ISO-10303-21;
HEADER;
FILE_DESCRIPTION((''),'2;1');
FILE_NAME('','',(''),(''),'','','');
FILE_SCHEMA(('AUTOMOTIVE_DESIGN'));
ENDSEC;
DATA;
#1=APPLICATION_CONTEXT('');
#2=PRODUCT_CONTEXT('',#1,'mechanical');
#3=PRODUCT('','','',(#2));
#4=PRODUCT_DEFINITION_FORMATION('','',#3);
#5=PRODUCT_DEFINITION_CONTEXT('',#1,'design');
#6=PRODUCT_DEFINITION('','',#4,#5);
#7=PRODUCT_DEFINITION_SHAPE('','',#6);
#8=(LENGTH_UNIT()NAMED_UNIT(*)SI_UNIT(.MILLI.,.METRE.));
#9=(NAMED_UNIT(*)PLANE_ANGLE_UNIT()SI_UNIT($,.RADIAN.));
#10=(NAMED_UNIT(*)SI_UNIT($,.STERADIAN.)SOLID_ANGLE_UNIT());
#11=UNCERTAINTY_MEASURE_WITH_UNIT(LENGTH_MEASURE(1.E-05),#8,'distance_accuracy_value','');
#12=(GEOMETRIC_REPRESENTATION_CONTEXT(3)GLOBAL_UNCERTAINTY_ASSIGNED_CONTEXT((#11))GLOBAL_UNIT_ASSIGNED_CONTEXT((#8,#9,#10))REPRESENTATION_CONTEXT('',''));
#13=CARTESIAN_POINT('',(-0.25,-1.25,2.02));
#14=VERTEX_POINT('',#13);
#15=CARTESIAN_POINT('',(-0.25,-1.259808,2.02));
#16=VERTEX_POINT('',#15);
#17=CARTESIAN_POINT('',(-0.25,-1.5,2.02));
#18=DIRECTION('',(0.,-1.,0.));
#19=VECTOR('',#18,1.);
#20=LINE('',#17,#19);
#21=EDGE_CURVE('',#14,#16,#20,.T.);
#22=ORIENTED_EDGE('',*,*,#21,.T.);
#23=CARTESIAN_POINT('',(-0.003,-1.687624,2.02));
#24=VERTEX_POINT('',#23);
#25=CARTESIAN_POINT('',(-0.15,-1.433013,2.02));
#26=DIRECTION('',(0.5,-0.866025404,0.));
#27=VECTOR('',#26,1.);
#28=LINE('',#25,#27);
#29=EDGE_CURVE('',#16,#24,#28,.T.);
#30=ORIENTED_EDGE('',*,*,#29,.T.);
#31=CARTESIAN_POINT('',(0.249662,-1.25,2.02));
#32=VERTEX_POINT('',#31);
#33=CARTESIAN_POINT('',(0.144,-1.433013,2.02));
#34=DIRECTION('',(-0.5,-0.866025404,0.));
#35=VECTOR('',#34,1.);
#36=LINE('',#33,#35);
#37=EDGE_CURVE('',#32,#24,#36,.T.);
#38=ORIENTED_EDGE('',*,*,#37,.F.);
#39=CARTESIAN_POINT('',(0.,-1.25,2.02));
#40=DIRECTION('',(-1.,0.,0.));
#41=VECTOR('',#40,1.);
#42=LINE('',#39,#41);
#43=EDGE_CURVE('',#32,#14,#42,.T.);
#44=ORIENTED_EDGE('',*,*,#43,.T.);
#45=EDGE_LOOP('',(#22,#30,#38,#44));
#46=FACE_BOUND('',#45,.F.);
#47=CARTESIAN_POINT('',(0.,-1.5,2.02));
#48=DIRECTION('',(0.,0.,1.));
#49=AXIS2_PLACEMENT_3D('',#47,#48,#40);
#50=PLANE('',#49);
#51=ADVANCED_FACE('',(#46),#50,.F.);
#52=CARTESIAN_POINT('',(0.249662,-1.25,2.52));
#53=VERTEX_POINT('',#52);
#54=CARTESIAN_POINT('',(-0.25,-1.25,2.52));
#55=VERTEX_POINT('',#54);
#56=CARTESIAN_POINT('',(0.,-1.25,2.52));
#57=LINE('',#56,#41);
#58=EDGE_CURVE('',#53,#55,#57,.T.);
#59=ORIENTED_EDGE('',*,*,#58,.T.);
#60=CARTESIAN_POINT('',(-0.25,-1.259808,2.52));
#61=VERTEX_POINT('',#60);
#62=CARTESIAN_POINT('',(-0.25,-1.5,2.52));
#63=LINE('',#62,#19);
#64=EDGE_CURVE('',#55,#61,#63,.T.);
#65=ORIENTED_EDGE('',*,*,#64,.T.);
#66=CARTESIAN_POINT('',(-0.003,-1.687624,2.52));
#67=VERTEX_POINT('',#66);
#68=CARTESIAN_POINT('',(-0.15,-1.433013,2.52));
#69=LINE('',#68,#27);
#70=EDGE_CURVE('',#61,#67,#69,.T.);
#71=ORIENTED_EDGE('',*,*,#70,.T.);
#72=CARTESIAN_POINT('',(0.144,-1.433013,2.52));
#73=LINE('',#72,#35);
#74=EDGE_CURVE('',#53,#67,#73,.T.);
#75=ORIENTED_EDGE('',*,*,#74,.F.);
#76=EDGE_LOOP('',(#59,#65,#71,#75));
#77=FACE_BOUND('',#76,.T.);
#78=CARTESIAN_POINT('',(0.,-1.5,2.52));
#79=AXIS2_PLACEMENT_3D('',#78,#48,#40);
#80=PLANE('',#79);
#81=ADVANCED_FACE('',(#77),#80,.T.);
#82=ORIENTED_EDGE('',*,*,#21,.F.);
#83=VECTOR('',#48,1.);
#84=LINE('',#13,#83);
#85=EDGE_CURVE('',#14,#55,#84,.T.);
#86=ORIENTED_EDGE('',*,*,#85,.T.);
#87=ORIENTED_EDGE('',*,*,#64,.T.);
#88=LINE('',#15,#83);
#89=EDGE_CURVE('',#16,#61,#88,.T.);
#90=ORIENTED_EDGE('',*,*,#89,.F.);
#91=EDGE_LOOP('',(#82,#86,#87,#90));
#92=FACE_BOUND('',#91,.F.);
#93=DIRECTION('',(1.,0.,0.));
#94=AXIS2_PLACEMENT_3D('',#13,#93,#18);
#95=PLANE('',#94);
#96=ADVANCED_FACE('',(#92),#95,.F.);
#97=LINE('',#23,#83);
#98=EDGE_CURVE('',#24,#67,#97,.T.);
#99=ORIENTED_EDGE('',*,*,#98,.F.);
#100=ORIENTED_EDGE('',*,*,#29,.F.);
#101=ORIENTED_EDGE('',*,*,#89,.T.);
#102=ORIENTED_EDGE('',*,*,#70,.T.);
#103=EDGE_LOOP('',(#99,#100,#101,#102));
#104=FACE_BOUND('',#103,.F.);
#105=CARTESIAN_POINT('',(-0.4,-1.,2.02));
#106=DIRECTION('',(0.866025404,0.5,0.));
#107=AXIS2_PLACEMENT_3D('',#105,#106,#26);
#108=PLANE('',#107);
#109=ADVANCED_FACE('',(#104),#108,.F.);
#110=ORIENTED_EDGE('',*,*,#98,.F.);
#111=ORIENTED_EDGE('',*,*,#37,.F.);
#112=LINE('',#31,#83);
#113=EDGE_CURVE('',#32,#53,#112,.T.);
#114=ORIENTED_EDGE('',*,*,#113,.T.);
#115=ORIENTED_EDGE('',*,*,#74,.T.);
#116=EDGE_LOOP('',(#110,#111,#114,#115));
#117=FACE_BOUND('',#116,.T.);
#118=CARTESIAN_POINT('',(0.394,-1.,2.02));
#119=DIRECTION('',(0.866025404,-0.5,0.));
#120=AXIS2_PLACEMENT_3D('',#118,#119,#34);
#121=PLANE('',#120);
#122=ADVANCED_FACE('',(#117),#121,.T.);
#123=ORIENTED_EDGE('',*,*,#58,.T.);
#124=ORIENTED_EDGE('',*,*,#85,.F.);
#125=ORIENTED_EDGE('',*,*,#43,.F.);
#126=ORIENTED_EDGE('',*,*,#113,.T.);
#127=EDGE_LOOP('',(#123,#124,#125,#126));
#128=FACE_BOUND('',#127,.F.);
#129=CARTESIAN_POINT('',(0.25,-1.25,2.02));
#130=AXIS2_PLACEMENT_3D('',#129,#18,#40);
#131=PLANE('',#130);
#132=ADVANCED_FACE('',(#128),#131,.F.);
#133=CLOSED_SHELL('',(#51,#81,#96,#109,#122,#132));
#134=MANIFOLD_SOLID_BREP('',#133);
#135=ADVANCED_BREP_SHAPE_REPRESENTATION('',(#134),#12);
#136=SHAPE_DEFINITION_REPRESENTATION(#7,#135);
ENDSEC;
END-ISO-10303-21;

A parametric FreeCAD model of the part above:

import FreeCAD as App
import Part
import Sketcher
Q = App.Units.Quantity


def add_polygon(sketch, points):
    """Adds a closed chain of lines whose ends are joined by coincident constraints."""
    first, n = sketch.GeometryCount, len(points)
    for a, b in zip(points, points[1:] + points[:1]):
        sketch.addGeometry(Part.LineSegment(App.Vector(*a, 0), App.Vector(*b, 0)), False)
    for i in range(n):
        sketch.addConstraint(Sketcher.Constraint("Coincident", first + i, 2, first + (i + 1) % n, 1))

doc = App.newDocument("Part")
params = doc.addObject("Spreadsheet::Sheet", "Params")
for row, (alias, value) in enumerate([
    ("sketch1_width", "1 mm"),
    ("pad1_length", "0.5 mm"),
    ("sketch2_width", "1 mm"),
    ("pad2_length", "0.5 mm"),
    ("sketch3_width", "0.5 mm"),
    ("pad3_length", "0.5 mm"),
], start=1):
    params.set(f"A{row}", alias)
    params.set(f"B{row}", "=" + value)
    params.setAlias(f"B{row}", alias)

body = doc.addObject("PartDesign::Body", "Body")

# Sketch on XY plane
sketch1 = doc.addObject("Sketcher::SketchObject", "Sketch")
body.addObject(sketch1)
sketch1.AttachmentSupport = (doc.XY_Plane, [""])
sketch1.MapMode = "FlatFace"
add_polygon(sketch1, [(0, 1), (0, 0), (1, 0), (1, 1)])  # lines 0-3
sketch1.addConstraint([
    Sketcher.Constraint("Vertical", 0),
    Sketcher.Constraint("Horizontal", 1),
    Sketcher.Constraint("Vertical", 2),
    Sketcher.Constraint("Horizontal", 3),
    Sketcher.Constraint("Coincident", 0, 2, -1, 1),
    Sketcher.Constraint("Equal", 3, 0),
    Sketcher.Constraint("DistanceX", 1, 1, 1, 2, Q("1 mm")),
])
sketch1.setExpression("Constraints[10]", "Params.sketch1_width")
pad1 = doc.addObject("PartDesign::Pad", "Pad")
body.addObject(pad1)
pad1.Profile = sketch1
pad1.setExpression("Length", "Params.pad1_length")
body2 = doc.addObject("PartDesign::Body", "Body001")
doc.recompute()

body.Placement = App.Placement(App.Vector(0.4, 1, 2.02), App.Rotation(App.Vector(0, 0, 1), 30))
boolean = doc.addObject("PartDesign::Boolean", "Boolean")
body2.addObject(boolean)
boolean.Type = "Fuse"
boolean.addObjects([body])
body3 = doc.addObject("PartDesign::Body", "Body002")

# Sketch on XY plane
sketch2 = doc.addObject("Sketcher::SketchObject", "Sketch001")
body3.addObject(sketch2)
sketch2.AttachmentSupport = (doc.getObject("XY_Plane002"), [""])
sketch2.MapMode = "FlatFace"
add_polygon(sketch2, [(0, 1), (0, 0), (1, 0), (1, 1)])  # lines 0-3
sketch2.addConstraint([
    Sketcher.Constraint("Vertical", 0),
    Sketcher.Constraint("Horizontal", 1),
    Sketcher.Constraint("Vertical", 2),
    Sketcher.Constraint("Horizontal", 3),
    Sketcher.Constraint("Coincident", 0, 2, -1, 1),
    Sketcher.Constraint("Equal", 3, 0),
    Sketcher.Constraint("DistanceX", 1, 1, 1, 2, Q("1 mm")),
])
sketch2.setExpression("Constraints[10]", "Params.sketch2_width")
pad2 = doc.addObject("PartDesign::Pad", "Pad001")
body3.addObject(pad2)
pad2.Profile = sketch2
pad2.setExpression("Length", "Params.pad2_length")
body4 = doc.addObject("PartDesign::Body", "Body003")
doc.recompute()

body3.Placement = App.Placement(App.Vector(-0.394, 1, 2.02), App.Rotation(App.Vector(0, 0, 1), 60))
boolean2 = doc.addObject("PartDesign::Boolean", "Boolean001")
body4.addObject(boolean2)
boolean2.Type = "Fuse"
boolean2.addObjects([body3])
body5 = doc.addObject("PartDesign::Body", "Body004")

# Sketch on XY plane
sketch3 = doc.addObject("Sketcher::SketchObject", "Sketch002")
body5.addObject(sketch3)
sketch3.AttachmentSupport = (doc.getObject("XY_Plane004"), [""])
sketch3.MapMode = "FlatFace"
sketch3.AttachmentOffset = App.Placement(App.Vector(0, 0, 2.02), App.Rotation())
add_polygon(sketch3, [(-0.25, 1.75), (-0.25, 1.25), (0.25, 1.25), (0.25, 1.75)])  # lines 0-3
sketch3.addConstraint([
    Sketcher.Constraint("Vertical", 0),
    Sketcher.Constraint("Horizontal", 1),
    Sketcher.Constraint("Vertical", 2),
    Sketcher.Constraint("Horizontal", 3),
    Sketcher.Constraint("Equal", 3, 0),
    Sketcher.Constraint("DistanceX", 1, 1, 1, 2, Q("0.5 mm")),
    Sketcher.Constraint("DistanceX", 0, 2, -1, 1, Q("0.25 mm")),
    Sketcher.Constraint("DistanceY", -1, 1, 0, 2, Q("1.25 mm")),
])
sketch3.setExpression("Constraints[9]", "Params.sketch3_width")
pad3 = doc.addObject("PartDesign::Pad", "Pad002")
body5.addObject(pad3)
pad3.Profile = sketch3
pad3.setExpression("Length", "Params.pad3_length")
doc.recompute()

boolean3 = doc.addObject("PartDesign::Boolean", "Boolean002")
body5.addObject(boolean3)
boolean3.Type = "Cut"
boolean3.addObjects([body4])
doc.recompute()

boolean4 = doc.addObject("PartDesign::Boolean", "Boolean003")
body5.addObject(boolean4)
boolean4.Type = "Cut"
boolean4.addObjects([body2])
body6 = doc.addObject("PartDesign::Body", "Body005")
doc.recompute()

body5.Placement = App.Placement(App.Vector(0, 0, 0), App.Rotation(App.Vector(0, 0, 1), 180))
boolean5 = doc.addObject("PartDesign::Boolean", "Boolean004")
body6.addObject(boolean5)
boolean5.Type = "Fuse"
boolean5.addObjects([body5])

doc.recompute()
